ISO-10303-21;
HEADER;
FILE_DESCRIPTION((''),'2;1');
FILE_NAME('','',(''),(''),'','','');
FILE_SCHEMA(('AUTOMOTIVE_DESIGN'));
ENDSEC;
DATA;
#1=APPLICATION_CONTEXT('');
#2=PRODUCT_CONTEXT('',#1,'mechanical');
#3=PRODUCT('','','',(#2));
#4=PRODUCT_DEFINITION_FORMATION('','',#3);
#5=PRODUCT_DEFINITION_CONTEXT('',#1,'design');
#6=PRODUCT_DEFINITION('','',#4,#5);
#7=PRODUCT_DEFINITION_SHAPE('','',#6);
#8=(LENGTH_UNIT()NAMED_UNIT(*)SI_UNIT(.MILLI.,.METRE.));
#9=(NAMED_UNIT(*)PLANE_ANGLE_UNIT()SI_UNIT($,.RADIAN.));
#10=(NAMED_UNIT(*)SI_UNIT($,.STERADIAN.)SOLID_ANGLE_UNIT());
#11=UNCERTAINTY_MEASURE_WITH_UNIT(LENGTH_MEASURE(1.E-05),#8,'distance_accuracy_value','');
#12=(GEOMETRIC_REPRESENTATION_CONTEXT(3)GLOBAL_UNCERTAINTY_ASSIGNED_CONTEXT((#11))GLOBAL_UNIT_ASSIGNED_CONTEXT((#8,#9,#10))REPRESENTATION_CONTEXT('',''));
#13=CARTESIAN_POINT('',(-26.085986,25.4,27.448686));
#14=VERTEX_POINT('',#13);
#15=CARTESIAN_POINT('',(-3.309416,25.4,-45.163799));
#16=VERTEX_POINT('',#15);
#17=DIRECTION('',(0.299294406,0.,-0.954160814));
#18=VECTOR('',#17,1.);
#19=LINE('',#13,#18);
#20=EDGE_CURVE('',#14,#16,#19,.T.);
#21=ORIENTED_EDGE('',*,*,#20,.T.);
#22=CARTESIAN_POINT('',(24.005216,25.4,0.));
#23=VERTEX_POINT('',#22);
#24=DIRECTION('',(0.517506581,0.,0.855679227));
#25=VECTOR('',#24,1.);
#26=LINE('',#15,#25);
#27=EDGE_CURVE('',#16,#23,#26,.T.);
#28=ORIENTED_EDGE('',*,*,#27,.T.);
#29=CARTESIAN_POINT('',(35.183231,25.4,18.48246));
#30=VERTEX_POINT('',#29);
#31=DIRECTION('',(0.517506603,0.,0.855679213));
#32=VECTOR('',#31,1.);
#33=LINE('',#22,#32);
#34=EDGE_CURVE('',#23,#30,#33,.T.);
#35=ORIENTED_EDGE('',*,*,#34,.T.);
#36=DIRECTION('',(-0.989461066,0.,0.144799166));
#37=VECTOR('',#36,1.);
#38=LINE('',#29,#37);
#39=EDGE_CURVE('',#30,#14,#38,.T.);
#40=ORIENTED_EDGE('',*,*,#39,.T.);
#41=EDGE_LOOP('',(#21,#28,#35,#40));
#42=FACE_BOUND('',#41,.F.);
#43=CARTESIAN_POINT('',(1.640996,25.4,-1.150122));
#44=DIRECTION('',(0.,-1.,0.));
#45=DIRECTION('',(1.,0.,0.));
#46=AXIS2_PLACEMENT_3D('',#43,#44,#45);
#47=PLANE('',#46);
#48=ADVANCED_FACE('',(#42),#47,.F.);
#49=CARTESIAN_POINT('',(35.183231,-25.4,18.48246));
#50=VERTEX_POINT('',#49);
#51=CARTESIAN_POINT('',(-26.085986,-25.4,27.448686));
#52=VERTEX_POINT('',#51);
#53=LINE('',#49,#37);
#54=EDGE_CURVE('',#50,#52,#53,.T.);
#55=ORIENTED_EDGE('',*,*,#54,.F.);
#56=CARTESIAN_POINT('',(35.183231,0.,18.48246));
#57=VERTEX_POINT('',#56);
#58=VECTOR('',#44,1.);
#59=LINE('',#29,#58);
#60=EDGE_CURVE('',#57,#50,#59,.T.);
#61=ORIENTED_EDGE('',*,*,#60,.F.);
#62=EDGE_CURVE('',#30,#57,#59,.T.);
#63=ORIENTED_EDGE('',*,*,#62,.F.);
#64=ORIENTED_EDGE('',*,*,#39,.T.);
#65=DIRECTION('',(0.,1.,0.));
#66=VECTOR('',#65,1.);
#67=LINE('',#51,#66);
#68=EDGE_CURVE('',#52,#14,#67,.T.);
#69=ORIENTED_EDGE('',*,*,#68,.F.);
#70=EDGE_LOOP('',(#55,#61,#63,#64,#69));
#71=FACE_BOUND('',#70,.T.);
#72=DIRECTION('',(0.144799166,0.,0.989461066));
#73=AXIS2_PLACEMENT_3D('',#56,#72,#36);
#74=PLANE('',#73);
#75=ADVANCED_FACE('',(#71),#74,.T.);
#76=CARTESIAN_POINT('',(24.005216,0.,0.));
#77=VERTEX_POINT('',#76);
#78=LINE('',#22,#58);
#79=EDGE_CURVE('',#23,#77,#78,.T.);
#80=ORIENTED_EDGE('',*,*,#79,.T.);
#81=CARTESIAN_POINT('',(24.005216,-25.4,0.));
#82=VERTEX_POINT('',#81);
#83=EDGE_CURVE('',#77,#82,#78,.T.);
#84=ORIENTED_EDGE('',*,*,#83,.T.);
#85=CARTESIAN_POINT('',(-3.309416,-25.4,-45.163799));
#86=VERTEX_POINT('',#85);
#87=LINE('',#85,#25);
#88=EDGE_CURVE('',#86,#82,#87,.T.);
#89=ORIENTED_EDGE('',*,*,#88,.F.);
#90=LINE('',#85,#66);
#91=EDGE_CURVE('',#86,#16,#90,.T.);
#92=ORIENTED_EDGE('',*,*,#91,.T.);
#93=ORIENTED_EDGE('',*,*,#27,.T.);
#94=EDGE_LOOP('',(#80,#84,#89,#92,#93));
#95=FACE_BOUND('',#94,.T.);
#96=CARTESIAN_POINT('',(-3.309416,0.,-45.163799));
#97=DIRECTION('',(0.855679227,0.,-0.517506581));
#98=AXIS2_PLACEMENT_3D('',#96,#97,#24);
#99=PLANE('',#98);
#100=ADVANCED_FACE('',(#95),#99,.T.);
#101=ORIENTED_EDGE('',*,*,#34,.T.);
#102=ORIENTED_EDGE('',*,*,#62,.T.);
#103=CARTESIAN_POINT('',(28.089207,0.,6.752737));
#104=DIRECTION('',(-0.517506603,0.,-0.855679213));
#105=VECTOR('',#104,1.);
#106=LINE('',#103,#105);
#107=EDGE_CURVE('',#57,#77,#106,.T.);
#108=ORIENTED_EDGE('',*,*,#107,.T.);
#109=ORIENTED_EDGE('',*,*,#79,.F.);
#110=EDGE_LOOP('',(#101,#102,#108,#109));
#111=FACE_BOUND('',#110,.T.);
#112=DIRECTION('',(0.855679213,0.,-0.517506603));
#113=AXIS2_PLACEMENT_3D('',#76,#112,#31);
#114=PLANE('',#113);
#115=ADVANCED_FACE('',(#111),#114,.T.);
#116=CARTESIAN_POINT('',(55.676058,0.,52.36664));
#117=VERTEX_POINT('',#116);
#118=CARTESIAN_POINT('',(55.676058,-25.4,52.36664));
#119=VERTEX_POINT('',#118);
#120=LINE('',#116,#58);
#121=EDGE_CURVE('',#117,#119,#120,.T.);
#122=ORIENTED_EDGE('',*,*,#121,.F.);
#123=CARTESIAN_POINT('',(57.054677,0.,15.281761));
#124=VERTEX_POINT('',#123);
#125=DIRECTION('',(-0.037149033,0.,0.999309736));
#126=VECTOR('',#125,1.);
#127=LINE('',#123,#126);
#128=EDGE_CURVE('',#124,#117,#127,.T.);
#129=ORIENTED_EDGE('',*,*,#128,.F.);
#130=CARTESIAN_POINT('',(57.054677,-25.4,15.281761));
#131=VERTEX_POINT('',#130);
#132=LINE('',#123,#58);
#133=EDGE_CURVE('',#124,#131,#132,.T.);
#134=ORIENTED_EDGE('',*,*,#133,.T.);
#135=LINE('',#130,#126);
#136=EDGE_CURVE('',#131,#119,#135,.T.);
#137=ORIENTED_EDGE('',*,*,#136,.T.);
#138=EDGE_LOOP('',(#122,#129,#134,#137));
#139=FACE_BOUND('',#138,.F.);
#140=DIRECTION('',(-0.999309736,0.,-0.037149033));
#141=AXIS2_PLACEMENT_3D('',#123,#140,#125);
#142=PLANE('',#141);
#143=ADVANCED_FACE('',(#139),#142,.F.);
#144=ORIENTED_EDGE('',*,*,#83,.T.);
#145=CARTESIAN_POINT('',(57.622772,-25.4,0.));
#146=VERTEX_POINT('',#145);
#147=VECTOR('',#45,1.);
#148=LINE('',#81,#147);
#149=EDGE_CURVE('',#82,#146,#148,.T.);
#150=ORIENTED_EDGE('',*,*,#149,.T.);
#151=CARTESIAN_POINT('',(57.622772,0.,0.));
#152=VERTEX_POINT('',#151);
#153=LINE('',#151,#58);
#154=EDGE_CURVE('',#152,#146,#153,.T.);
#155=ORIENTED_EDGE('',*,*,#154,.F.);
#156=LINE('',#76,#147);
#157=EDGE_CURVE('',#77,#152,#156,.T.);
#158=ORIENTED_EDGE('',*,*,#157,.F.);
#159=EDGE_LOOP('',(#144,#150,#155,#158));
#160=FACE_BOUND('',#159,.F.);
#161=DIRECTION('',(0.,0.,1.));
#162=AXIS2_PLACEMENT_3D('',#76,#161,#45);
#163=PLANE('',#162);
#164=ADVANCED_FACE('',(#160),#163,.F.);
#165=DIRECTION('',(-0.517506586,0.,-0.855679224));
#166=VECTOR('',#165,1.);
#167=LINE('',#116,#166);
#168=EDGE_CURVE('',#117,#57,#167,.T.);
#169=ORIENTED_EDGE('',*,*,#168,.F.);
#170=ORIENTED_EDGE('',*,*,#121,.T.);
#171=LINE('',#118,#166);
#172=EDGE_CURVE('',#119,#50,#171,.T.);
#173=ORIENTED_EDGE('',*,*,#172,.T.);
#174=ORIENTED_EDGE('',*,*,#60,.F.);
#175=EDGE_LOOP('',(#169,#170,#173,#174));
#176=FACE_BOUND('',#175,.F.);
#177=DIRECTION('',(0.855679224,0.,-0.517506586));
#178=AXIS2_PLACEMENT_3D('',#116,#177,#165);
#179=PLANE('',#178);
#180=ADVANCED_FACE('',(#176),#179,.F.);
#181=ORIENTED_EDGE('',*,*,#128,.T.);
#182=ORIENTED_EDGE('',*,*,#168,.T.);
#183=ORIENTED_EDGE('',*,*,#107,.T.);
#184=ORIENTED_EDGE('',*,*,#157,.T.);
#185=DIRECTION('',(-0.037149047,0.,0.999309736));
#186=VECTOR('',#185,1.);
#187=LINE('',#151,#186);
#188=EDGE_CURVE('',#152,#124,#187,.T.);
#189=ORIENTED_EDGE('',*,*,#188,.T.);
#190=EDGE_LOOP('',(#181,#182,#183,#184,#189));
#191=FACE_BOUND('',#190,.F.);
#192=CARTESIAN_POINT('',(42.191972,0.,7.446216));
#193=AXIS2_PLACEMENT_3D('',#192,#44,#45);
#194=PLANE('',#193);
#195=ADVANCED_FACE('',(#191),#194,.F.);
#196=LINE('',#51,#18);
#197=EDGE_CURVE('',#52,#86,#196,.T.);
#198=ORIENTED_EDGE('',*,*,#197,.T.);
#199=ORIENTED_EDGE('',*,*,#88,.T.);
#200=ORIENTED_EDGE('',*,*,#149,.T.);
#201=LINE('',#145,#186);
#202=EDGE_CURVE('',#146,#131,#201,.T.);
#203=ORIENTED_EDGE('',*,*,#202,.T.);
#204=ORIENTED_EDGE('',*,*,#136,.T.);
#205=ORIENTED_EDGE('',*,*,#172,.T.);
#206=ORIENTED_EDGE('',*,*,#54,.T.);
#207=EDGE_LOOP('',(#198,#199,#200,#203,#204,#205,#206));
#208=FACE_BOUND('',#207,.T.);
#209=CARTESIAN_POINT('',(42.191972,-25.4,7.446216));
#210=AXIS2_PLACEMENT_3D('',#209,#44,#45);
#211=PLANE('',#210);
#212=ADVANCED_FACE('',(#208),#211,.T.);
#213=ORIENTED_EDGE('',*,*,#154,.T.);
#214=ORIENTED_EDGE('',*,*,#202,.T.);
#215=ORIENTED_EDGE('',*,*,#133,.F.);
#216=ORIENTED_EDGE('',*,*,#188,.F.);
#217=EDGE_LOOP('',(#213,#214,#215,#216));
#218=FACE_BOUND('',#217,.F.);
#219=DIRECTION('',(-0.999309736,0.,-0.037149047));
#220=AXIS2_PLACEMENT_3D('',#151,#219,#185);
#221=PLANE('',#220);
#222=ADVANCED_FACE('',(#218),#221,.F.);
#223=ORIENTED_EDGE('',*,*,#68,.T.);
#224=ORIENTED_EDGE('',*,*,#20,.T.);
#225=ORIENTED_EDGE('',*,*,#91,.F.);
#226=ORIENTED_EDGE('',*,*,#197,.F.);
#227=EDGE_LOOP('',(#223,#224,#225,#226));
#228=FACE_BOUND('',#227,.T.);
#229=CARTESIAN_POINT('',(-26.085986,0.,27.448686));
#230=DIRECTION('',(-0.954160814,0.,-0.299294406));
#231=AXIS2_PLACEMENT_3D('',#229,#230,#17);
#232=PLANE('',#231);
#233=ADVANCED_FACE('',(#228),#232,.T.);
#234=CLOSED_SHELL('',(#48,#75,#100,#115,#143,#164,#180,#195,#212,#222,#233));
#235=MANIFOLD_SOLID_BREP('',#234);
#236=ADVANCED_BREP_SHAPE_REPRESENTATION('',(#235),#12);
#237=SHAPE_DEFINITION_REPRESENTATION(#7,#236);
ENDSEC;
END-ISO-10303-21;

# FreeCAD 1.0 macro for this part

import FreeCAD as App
import Part
import Sketcher

V = App.Vector
Q = App.Units.Quantity

doc = App.newDocument("Part")
body = doc.addObject("PartDesign::Body", "Body")

# Sketch on XZ plane
sketch1 = body.newObject("Sketcher::SketchObject", "Sketch")
sketch1.AttachmentSupport = (doc.getObject("XZ_Plane"), [""])
sketch1.MapMode = "FlatFace"
sketch1.addGeometry([
    Part.LineSegment(V(-3.309416, -45.163799, 0), V(24.005216, 0, 0)),
    Part.LineSegment(V(24.005216, 0, 0), V(35.183231, 18.48246, 0)),
    Part.LineSegment(V(35.183231, 18.48246, 0), V(-26.085986, 27.448686, 0)),
    Part.LineSegment(V(-26.085986, 27.448686, 0), V(-3.309416, -45.163799, 0)),
], False)
sketch1.addConstraint([
    Sketcher.Constraint("Coincident", 0, 2, 1, 1),
    Sketcher.Constraint("Coincident", 1, 2, 2, 1),
    Sketcher.Constraint("Coincident", 2, 2, 3, 1),
    Sketcher.Constraint("Coincident", 3, 2, 0, 1),
    Sketcher.Constraint("PointOnObject", 0, 2, -1),
    Sketcher.Constraint("Parallel", 0, 1),
    Sketcher.Constraint("DistanceY", 3, 2, -1, 1, 45.163799),
    Sketcher.Constraint("DistanceX", 2, 2, 0, 2, 50.091202),
    Sketcher.Constraint("DistanceX", -1, 1, 1, 2, 35.183231),
    Sketcher.Constraint("DistanceY", -1, 1, 1, 2, 18.48246),
    Sketcher.Constraint("DistanceX", 3, 2, 0, 2, 27.314632),
    Sketcher.Constraint("Distance", 2, 61.921807),
])
pad1 = body.newObject("PartDesign::Pad", "Pad")
pad1.Profile = sketch1
pad1.Type = "TwoLengths"
pad1.Length = Q("1 in")
pad1.Length2 = Q("1 in")

# Sketch on XZ plane
sketch2 = body.newObject("Sketcher::SketchObject", "Sketch001")
sketch2.AttachmentSupport = (doc.getObject("XZ_Plane"), [""])
sketch2.MapMode = "FlatFace"
sketch2.addGeometry([
    Part.LineSegment(V(24.005216, 0, 0), V(57.622772, 0, 0)),  # 0
    Part.LineSegment(V(57.622772, 0, 0), V(57.054677, 15.281761, 0)),  # 1
    Part.LineSegment(V(57.054677, 15.281761, 0), V(55.676058, 52.36664, 0)),  # 2
    Part.LineSegment(V(55.676058, 52.36664, 0), V(35.183231, 18.48246, 0)),  # 3
    Part.LineSegment(V(35.183231, 18.48246, 0), V(-26.085986, 27.448686, 0)),  # 4
    Part.LineSegment(V(-26.085986, 27.448686, 0), V(-3.309416, -45.163799, 0)),  # 5
    Part.LineSegment(V(-3.309416, -45.163799, 0), V(24.005216, 0, 0)),  # 6
], False)
sketch2.addConstraint([
    Sketcher.Constraint("Coincident", 0, 2, 1, 1),
    Sketcher.Constraint("Coincident", 1, 2, 2, 1),
    Sketcher.Constraint("Coincident", 2, 2, 3, 1),
    Sketcher.Constraint("Coincident", 3, 2, 4, 1),
    Sketcher.Constraint("Coincident", 4, 2, 5, 1),
    Sketcher.Constraint("Coincident", 5, 2, 6, 1),
    Sketcher.Constraint("Coincident", 6, 2, 0, 1),
    Sketcher.Constraint("Horizontal", 0),
    Sketcher.Constraint("PointOnObject", 0, 2, -1),
    Sketcher.Constraint("Parallel", 1, 2),
    Sketcher.Constraint("Parallel", 3, 6),
    Sketcher.Constraint("DistanceY", 5, 2, -1, 1, 45.163799),
    Sketcher.Constraint("DistanceY", 1, 2, 3, 2, 3.200699),
    Sketcher.Constraint("DistanceX", 4, 2, 6, 2, 50.091202),
    Sketcher.Constraint("Distance", 3, 39.599162),
    Sketcher.Constraint("DistanceX", 0, 1, 0, 2, 33.617556),
    Sketcher.Constraint("DistanceX", -1, 1, 0, 2, 57.622772),
    Sketcher.Constraint("DistanceY", -1, 1, 1, 2, 15.281761),
    Sketcher.Constraint("DistanceY", -1, 1, 2, 2, 52.36664),
    Sketcher.Constraint("DistanceX", -1, 1, 3, 2, 35.183231),
    Sketcher.Constraint("Distance", 4, 61.921807),
])
pad2 = body.newObject("PartDesign::Pad", "Pad001")
pad2.Profile = sketch2
pad2.Length = Q("1 in")

doc.recompute()
